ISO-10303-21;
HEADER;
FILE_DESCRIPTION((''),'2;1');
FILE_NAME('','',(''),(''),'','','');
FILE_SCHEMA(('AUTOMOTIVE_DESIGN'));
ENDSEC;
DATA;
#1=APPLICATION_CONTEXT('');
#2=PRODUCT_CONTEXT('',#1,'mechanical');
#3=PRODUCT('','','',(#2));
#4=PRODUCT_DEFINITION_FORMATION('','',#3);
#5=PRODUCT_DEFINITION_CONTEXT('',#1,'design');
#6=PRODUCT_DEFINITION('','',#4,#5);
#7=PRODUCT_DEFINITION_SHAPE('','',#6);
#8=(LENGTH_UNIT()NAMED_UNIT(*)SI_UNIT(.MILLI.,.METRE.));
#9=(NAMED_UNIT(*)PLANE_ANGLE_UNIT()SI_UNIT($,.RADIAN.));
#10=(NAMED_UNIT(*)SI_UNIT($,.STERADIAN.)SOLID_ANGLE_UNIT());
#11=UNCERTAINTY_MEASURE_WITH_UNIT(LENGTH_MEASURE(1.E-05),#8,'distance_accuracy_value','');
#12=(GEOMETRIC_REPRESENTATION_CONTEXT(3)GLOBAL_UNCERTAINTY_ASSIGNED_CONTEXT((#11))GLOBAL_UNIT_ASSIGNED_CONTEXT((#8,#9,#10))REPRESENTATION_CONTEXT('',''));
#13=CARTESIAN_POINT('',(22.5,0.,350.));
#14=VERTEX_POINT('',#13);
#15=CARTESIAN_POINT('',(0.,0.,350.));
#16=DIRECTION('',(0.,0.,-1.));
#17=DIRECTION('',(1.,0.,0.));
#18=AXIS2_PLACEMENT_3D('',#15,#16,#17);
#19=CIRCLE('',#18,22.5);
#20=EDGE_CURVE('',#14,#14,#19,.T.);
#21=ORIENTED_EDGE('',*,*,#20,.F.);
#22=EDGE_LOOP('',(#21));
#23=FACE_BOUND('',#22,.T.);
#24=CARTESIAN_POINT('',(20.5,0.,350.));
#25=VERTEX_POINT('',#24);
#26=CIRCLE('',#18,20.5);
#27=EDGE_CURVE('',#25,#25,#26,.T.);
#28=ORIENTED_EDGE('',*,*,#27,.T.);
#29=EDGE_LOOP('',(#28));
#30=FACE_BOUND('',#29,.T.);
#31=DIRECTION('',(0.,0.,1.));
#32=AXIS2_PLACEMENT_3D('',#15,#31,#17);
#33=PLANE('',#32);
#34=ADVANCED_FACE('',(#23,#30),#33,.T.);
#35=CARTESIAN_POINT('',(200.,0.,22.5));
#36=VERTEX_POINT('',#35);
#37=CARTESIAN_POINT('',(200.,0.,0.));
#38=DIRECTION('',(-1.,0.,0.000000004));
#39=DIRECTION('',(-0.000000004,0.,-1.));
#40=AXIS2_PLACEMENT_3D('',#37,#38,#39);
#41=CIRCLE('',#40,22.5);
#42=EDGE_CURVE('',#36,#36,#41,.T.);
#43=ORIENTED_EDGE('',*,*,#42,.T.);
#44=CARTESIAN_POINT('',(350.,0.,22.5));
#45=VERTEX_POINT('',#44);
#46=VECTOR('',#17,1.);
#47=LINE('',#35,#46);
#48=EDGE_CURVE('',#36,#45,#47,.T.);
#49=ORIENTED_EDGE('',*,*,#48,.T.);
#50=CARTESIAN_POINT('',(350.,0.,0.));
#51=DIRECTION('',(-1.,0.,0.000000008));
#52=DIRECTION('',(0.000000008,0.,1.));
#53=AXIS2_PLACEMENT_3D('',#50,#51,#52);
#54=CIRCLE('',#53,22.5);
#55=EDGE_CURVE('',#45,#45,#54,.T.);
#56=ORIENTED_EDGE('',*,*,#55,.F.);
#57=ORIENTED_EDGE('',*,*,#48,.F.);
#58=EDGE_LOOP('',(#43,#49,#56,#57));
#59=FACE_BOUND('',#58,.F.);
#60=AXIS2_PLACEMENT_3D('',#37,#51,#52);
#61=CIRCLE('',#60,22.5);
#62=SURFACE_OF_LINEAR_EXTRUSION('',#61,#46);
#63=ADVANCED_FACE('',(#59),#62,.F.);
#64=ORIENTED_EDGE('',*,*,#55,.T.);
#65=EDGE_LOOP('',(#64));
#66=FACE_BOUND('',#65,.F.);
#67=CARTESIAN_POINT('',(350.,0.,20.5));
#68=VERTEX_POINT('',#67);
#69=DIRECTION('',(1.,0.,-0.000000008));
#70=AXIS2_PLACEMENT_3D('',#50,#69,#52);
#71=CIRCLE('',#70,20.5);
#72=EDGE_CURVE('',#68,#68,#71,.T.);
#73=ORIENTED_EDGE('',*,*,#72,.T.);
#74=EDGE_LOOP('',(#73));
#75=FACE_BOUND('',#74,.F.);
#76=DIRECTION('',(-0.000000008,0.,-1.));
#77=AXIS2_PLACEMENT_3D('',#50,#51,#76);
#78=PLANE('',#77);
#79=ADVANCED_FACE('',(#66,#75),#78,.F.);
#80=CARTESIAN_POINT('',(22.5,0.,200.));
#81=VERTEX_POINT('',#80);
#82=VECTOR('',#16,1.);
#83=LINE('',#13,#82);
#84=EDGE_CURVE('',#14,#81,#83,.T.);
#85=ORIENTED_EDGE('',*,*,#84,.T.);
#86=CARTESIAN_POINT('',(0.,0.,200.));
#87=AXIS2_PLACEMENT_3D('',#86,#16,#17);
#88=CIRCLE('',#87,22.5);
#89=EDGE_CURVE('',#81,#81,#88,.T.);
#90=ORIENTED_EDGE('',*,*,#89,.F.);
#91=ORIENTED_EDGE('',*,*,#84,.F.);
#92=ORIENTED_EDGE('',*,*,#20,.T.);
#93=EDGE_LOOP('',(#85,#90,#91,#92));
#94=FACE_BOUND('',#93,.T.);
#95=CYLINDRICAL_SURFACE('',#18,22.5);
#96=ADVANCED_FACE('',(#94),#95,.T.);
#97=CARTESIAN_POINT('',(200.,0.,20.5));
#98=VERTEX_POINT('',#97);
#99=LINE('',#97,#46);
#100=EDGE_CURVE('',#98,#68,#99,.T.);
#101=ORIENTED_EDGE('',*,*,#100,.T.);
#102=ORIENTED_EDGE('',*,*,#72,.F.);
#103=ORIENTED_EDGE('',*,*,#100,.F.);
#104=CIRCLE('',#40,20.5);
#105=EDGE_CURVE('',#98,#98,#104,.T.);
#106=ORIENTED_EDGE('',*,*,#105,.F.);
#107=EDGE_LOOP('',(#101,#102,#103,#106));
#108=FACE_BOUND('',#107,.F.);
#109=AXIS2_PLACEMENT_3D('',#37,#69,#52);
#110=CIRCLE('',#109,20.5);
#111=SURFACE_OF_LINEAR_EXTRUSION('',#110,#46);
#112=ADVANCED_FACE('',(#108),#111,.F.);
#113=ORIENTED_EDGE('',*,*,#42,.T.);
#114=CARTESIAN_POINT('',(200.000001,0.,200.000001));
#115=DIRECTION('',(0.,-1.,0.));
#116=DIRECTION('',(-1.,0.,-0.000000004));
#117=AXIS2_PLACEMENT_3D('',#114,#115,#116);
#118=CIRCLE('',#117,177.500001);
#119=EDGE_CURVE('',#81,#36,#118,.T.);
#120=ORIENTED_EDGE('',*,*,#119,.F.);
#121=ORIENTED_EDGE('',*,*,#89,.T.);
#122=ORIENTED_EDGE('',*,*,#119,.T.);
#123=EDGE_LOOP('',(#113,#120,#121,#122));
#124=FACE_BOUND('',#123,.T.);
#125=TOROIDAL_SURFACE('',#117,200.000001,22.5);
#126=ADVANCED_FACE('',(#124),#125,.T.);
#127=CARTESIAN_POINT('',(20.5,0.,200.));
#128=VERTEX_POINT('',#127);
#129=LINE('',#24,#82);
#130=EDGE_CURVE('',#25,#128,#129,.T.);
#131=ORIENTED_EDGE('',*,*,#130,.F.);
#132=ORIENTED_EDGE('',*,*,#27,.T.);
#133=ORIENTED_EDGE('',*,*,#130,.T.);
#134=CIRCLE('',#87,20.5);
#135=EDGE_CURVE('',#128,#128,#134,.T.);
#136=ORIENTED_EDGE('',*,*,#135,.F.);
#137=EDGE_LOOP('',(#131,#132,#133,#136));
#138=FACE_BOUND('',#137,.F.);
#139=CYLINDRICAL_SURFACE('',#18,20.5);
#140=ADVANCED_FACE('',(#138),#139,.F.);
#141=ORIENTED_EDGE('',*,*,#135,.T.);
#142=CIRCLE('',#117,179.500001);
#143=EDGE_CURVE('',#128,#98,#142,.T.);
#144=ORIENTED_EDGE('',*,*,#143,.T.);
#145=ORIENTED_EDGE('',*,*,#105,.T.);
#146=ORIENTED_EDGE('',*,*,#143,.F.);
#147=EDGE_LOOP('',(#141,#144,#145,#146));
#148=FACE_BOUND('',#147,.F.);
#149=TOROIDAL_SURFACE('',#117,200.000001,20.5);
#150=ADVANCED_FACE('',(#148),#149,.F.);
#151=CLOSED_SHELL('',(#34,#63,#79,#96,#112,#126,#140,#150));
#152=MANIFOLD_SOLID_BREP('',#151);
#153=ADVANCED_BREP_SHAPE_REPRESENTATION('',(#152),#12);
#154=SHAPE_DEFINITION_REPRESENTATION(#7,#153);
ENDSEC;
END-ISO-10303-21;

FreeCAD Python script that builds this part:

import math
import FreeCAD as App
import Part
import Sketcher
from FreeCAD import Vector
Q = App.Units.Quantity

doc = App.newDocument("Part")
params = doc.addObject("Spreadsheet::Sheet", "Params")
for row, (alias, value) in enumerate([
    ("sketch1_diameter", "45 mm"),
    ("sketch1_diameter2", "41 mm"),
    ("sketch2_radius", "200.000001 mm"),
    ("sketch2_width", "150 mm"),
], start=1):
    params.set(f"A{row}", alias)
    params.set(f"B{row}", "=" + value)
    params.setAlias(f"B{row}", alias)

body = doc.addObject("PartDesign::Body", "Body")

# Sketch on XY plane
sketch1 = doc.addObject("Sketcher::SketchObject", "Sketch")
body.addObject(sketch1)
sketch1.AttachmentSupport = (doc.XY_Plane, [""])
sketch1.MapMode = "FlatFace"
sketch1.AttachmentOffset = App.Placement(Vector(0, 0, 350), App.Rotation())
sketch1.addGeometry(Part.Circle(Vector(0, 0, 0), Vector(0, 0, 1), 22), False)
sketch1.addGeometry(Part.Circle(Vector(0, 0, 0), Vector(0, 0, 1), 20), False)
sketch1.addConstraint(Sketcher.Constraint("Coincident", 0, 3, -1, 1))
sketch1.addConstraint(Sketcher.Constraint("Coincident", 1, 3, -1, 1))
sketch1.addConstraint(Sketcher.Constraint("Diameter", 0, Q("45 mm")))
sketch1.addConstraint(Sketcher.Constraint("Diameter", 1, Q("41 mm")))
sketch1.setExpression("Constraints[2]", "Params.sketch1_diameter")
sketch1.setExpression("Constraints[3]", "Params.sketch1_diameter2")

# Sketch on XZ plane
sketch2 = doc.addObject("Sketcher::SketchObject", "Sketch001")
body.addObject(sketch2)
sketch2.AttachmentSupport = (doc.XZ_Plane, [""])
sketch2.MapMode = "FlatFace"
sketch2.addGeometry(Part.LineSegment(Vector(0, 350, 0), Vector(0, 200, 0)), False)
sketch2.addGeometry(Part.ArcOfCircle(Part.Circle(Vector(200, 200, 0), Vector(0, 0, 1), 200), math.radians(-180), math.radians(-90)), False)
sketch2.addGeometry(Part.LineSegment(Vector(200, 0, 0), Vector(350, 0, 0)), False)
sketch2.addConstraint(Sketcher.Constraint("Tangent", 0, 2, 1, 1))
sketch2.addConstraint(Sketcher.Constraint("Tangent", 1, 2, 2, 1))
sketch2.addConstraint(Sketcher.Constraint("Vertical", 0))
sketch2.addConstraint(Sketcher.Constraint("Horizontal", 2))
sketch2.addConstraint(Sketcher.Constraint("PointOnObject", 0, 1, -2))
sketch2.addConstraint(Sketcher.Constraint("PointOnObject", 1, 2, -1))
sketch2.addConstraint(Sketcher.Constraint("Equal", 2, 0))
sketch2.addConstraint(Sketcher.Constraint("Radius", 1, Q("200.000001 mm")))
sketch2.addConstraint(Sketcher.Constraint("DistanceX", 2, 1, 2, 2, Q("150 mm")))
sketch2.setExpression("Constraints[7]", "Params.sketch2_radius")
sketch2.setExpression("Constraints[8]", "Params.sketch2_width")
doc.recompute()

additivepipe = doc.addObject("PartDesign::AdditivePipe", "AdditivePipe")
body.addObject(additivepipe)
additivepipe.Profile = sketch1
additivepipe.Spine = (sketch2, ["Edge1", "Edge2", "Edge3"])

doc.recompute()
